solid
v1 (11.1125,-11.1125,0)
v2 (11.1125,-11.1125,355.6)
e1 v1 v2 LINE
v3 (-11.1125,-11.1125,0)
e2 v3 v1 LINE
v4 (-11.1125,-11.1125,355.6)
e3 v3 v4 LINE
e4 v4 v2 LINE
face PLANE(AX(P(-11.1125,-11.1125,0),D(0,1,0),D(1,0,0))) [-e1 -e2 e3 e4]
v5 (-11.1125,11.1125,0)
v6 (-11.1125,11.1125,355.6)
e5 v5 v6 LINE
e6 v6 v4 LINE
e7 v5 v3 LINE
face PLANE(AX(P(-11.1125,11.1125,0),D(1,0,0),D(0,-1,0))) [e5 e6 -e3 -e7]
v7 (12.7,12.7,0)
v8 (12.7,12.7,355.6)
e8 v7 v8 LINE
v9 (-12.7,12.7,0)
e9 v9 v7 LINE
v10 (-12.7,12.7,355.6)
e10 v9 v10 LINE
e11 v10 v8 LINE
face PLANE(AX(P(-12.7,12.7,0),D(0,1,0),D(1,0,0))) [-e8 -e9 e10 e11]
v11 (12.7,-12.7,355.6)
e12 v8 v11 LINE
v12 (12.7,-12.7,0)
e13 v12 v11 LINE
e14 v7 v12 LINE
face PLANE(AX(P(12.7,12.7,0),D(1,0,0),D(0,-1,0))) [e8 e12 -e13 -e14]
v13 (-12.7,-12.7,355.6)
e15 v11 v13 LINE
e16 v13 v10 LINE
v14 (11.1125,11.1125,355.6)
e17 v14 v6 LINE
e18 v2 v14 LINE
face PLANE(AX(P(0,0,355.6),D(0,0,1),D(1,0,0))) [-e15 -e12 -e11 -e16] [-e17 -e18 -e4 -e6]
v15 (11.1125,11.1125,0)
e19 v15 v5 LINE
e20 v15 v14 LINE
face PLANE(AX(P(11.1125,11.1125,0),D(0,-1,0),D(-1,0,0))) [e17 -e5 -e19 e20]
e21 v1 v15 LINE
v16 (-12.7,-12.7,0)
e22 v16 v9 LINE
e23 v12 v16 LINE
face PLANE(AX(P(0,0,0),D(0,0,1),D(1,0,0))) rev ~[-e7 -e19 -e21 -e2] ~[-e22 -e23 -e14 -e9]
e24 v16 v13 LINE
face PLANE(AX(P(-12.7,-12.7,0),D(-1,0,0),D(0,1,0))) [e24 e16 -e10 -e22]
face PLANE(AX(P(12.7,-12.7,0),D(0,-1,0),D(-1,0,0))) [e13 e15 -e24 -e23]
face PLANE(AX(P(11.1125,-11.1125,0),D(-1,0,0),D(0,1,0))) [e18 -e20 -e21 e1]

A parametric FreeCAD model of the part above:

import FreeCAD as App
import Part
import Sketcher

V = App.Vector
Q = App.Units.Quantity


def add_polygon(sketch, points):
    """Adds a closed chain of lines whose ends are joined by coincident constraints."""
    first, n = sketch.GeometryCount, len(points)
    for a, b in zip(points, points[1:] + points[:1]):
        sketch.addGeometry(Part.LineSegment(App.Vector(*a, 0), App.Vector(*b, 0)), False)
    for i in range(n):
        sketch.addConstraint(Sketcher.Constraint("Coincident", first + i, 2, first + (i + 1) % n, 1))

doc = App.newDocument("Part")
body = doc.addObject("PartDesign::Body", "Body")

# Sketch on XY plane
sketch1 = body.newObject("Sketcher::SketchObject", "Sketch")
sketch1.AttachmentSupport = (doc.getObject("XY_Plane"), [""])
sketch1.MapMode = "FlatFace"
add_polygon(sketch1, [(-12.7, 12.7), (-12.7, -12.7), (12.7, -12.7), (12.7, 12.7)])  # lines 0-3
add_polygon(sketch1, [(-11.1125, 11.1125), (11.1125, 11.1125), (11.1125, -11.1125), (-11.1125, -11.1125)])  # lines 4-7
sketch1.addConstraint(Sketcher.Constraint("Vertical", 0))
sketch1.addConstraint(Sketcher.Constraint("Horizontal", 1))
sketch1.addConstraint(Sketcher.Constraint("Vertical", 2))
sketch1.addConstraint(Sketcher.Constraint("Horizontal", 3))
sketch1.addConstraint(Sketcher.Constraint("Horizontal", 4))
sketch1.addConstraint(Sketcher.Constraint("Vertical", 5))
sketch1.addConstraint(Sketcher.Constraint("Horizontal", 6))
sketch1.addConstraint(Sketcher.Constraint("Vertical", 7))
sketch1.addConstraint(Sketcher.Constraint("Symmetric", 0, 2, 2, 2, -1, 1))
sketch1.addConstraint(Sketcher.Constraint("Symmetric", 4, 2, 6, 2, -1, 1))
sketch1.addConstraint(Sketcher.Constraint("Equal", 3, 0))
sketch1.addConstraint(Sketcher.Constraint("Equal", 6, 5))
sketch1.addConstraint(Sketcher.Constraint("DistanceX", 1, 1, 1, 2, Q("1 in")))
sketch1.addConstraint(Sketcher.Constraint("DistanceX", 4, 2, 2, 2, Q("0.0625 in")))
pad1 = body.newObject("PartDesign::Pad", "Pad")
pad1.Profile = sketch1
pad1.Length = Q("14 in")

doc.recompute()
